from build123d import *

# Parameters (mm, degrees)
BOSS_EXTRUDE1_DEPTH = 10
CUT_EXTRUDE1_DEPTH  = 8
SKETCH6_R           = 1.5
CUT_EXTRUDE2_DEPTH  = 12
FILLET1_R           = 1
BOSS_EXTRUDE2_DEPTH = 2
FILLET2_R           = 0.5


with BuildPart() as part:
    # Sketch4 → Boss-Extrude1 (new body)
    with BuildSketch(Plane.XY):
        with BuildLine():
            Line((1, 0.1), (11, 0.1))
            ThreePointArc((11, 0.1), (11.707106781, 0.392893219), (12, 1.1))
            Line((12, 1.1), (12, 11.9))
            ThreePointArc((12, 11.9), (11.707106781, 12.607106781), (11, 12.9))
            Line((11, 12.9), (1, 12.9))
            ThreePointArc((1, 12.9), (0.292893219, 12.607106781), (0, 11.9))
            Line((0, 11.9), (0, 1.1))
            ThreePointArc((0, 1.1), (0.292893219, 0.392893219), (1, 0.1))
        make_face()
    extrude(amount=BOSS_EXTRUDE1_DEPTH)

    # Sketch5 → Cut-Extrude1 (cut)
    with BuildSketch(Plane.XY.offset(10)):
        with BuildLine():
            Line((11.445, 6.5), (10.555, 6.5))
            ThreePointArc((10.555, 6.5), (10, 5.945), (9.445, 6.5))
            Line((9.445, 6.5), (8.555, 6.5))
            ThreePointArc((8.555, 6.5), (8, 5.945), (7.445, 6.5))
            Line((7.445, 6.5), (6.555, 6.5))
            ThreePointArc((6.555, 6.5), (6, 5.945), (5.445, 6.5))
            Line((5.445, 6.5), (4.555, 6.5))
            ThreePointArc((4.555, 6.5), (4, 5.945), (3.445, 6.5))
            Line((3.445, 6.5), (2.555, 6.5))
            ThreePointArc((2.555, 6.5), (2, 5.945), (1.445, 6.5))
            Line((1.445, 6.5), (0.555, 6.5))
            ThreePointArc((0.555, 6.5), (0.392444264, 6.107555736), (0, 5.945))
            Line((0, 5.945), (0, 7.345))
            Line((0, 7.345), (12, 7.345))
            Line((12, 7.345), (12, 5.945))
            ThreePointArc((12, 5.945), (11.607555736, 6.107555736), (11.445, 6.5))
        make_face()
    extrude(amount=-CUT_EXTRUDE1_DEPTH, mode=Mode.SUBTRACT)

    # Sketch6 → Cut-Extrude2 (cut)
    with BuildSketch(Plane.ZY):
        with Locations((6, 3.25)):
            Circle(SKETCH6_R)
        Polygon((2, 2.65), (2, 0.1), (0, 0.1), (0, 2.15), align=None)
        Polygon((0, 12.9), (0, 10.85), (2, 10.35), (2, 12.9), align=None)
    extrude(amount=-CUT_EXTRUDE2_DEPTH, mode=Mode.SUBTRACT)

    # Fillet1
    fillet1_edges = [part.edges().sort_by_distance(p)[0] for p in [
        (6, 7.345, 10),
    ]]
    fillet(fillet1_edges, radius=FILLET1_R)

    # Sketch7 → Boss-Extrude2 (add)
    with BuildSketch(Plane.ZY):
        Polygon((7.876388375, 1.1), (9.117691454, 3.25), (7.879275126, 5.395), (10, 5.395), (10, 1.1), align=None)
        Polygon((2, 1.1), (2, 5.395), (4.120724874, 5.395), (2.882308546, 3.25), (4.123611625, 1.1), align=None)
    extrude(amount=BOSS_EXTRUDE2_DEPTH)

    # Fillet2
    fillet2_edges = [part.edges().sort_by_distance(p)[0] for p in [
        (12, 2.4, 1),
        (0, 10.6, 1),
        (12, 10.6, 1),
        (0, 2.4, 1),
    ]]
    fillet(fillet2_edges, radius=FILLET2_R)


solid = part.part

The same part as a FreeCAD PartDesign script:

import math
import FreeCAD as App
import Part
import Sketcher
from FreeCAD import Vector
Q = App.Units.Quantity


def edges_at(feature, points):
    """Names of the edges that pass closest to the given points."""
    edges = feature.Shape.Edges
    near = lambda p: min(range(len(edges)), key=lambda i: edges[i].distToShape(Part.Vertex(*p))[0])
    return sorted({f"Edge{near(p) + 1}" for p in points})

doc = App.newDocument("Part")
body = doc.addObject("PartDesign::Body", "Body")

# Sketch on XY plane
sketch1 = body.newObject("Sketcher::SketchObject", "Sketch")
sketch1.AttachmentSupport = (doc.getObject("XY_Plane"), [""])
sketch1.MapMode = "FlatFace"
sketch1.addGeometry(Part.LineSegment(Vector(1, 0.1, 0), Vector(11, 0.1, 0)), False)
sketch1.addGeometry(Part.ArcOfCircle(Part.Circle(Vector(11, 1.1, 0), Vector(0, 0, 1), 1), math.radians(-90), math.radians(0)), False)
sketch1.addGeometry(Part.LineSegment(Vector(12, 1.1, 0), Vector(12, 11.9, 0)), False)
sketch1.addGeometry(Part.ArcOfCircle(Part.Circle(Vector(11, 11.9, 0), Vector(0, 0, 1), 1), math.radians(0), math.radians(90)), False)
sketch1.addGeometry(Part.LineSegment(Vector(11, 12.9, 0), Vector(1, 12.9, 0)), False)
sketch1.addGeometry(Part.ArcOfCircle(Part.Circle(Vector(1, 11.9, 0), Vector(0, 0, 1), 1), math.radians(90), math.radians(180)), False)
sketch1.addGeometry(Part.LineSegment(Vector(0, 11.9, 0), Vector(0, 1.1, 0)), False)
sketch1.addGeometry(Part.ArcOfCircle(Part.Circle(Vector(1, 1.1, 0), Vector(0, 0, 1), 1), math.radians(-180), math.radians(-90)), False)
sketch1.addConstraint(Sketcher.Constraint("Tangent", 0, 2, 1, 1))
sketch1.addConstraint(Sketcher.Constraint("Tangent", 1, 2, 2, 1))
sketch1.addConstraint(Sketcher.Constraint("Tangent", 2, 2, 3, 1))
sketch1.addConstraint(Sketcher.Constraint("Tangent", 3, 2, 4, 1))
sketch1.addConstraint(Sketcher.Constraint("Tangent", 4, 2, 5, 1))
sketch1.addConstraint(Sketcher.Constraint("Tangent", 5, 2, 6, 1))
sketch1.addConstraint(Sketcher.Constraint("Tangent", 6, 2, 7, 1))
sketch1.addConstraint(Sketcher.Constraint("Tangent", 7, 2, 0, 1))
sketch1.addConstraint(Sketcher.Constraint("Horizontal", 0))
sketch1.addConstraint(Sketcher.Constraint("Vertical", 2))
sketch1.addConstraint(Sketcher.Constraint("Horizontal", 4))
sketch1.addConstraint(Sketcher.Constraint("Vertical", 6))
sketch1.addConstraint(Sketcher.Constraint("Equal", 1, 3))
sketch1.addConstraint(Sketcher.Constraint("Equal", 3, 5))
sketch1.addConstraint(Sketcher.Constraint("Equal", 5, 7))
sketch1.addConstraint(Sketcher.Constraint("PointOnObject", 5, 2, -2))
sketch1.addConstraint(Sketcher.Constraint("Radius", 1, Q("1 mm")))
sketch1.addConstraint(Sketcher.Constraint("DistanceX", 0, 1, 0, 2, Q("10 mm")))
sketch1.addConstraint(Sketcher.Constraint("DistanceY", 2, 1, 2, 2, Q("10.8 mm")))
sketch1.addConstraint(Sketcher.Constraint("DistanceY", -1, 1, 1, 3, Q("1.1 mm")))
pad1 = body.newObject("PartDesign::Pad", "Pad")
pad1.Profile = sketch1
pad1.Length = 10

# Sketch on XY plane
sketch2 = body.newObject("Sketcher::SketchObject", "Sketch001")
sketch2.AttachmentSupport = (doc.getObject("XY_Plane"), [""])
sketch2.MapMode = "FlatFace"
sketch2.AttachmentOffset = App.Placement(Vector(0, 0, 10), App.Rotation())
sketch2.addGeometry(Part.LineSegment(Vector(10.6, 6.5, 0), Vector(11.4, 6.5, 0)), False)
sketch2.addGeometry(Part.ArcOfCircle(Part.Circle(Vector(12, 6.5, 0), Vector(0, 0, 1), 0.6), math.radians(180), math.radians(270)), False)
sketch2.addGeometry(Part.LineSegment(Vector(12, 5.9, 0), Vector(12, 7.3, 0)), False)
sketch2.addGeometry(Part.LineSegment(Vector(12, 7.3, 0), Vector(0, 7.3, 0)), False)
sketch2.addGeometry(Part.LineSegment(Vector(0, 7.3, 0), Vector(0, 5.9, 0)), False)
sketch2.addGeometry(Part.ArcOfCircle(Part.Circle(Vector(0, 6.5, 0), Vector(0, 0, 1), 0.6), math.radians(-90), math.radians(0)), False)
sketch2.addGeometry(Part.LineSegment(Vector(0.6, 6.5, 0), Vector(1.4, 6.5, 0)), False)
sketch2.addGeometry(Part.ArcOfCircle(Part.Circle(Vector(2, 6.5, 0), Vector(0, 0, 1), 0.6), math.radians(180), math.radians(360)), False)
sketch2.addGeometry(Part.LineSegment(Vector(2.6, 6.5, 0), Vector(3.4, 6.5, 0)), False)
sketch2.addGeometry(Part.ArcOfCircle(Part.Circle(Vector(4, 6.5, 0), Vector(0, 0, 1), 0.6), math.radians(180), math.radians(360)), False)
sketch2.addGeometry(Part.LineSegment(Vector(4.6, 6.5, 0), Vector(5.4, 6.5, 0)), False)
sketch2.addGeometry(Part.ArcOfCircle(Part.Circle(Vector(6, 6.5, 0), Vector(0, 0, 1), 0.6), math.radians(180), math.radians(360)), False)
sketch2.addGeometry(Part.LineSegment(Vector(6.6, 6.5, 0), Vector(7.4, 6.5, 0)), False)
sketch2.addGeometry(Part.ArcOfCircle(Part.Circle(Vector(8, 6.5, 0), Vector(0, 0, 1), 0.6), math.radians(180), math.radians(360)), False)
sketch2.addGeometry(Part.LineSegment(Vector(8.6, 6.5, 0), Vector(9.4, 6.5, 0)), False)
sketch2.addGeometry(Part.ArcOfCircle(Part.Circle(Vector(10, 6.5, 0), Vector(0, 0, 1), 0.6), math.radians(180), math.radians(360)), False)
sketch2.addConstraint(Sketcher.Constraint("Coincident", 0, 2, 1, 1))
sketch2.addConstraint(Sketcher.Constraint("Coincident", 1, 2, 2, 1))
sketch2.addConstraint(Sketcher.Constraint("Coincident", 2, 2, 3, 1))
sketch2.addConstraint(Sketcher.Constraint("Coincident", 3, 2, 4, 1))
sketch2.addConstraint(Sketcher.Constraint("Coincident", 4, 2, 5, 1))
sketch2.addConstraint(Sketcher.Constraint("Coincident", 5, 2, 6, 1))
sketch2.addConstraint(Sketcher.Constraint("Coincident", 6, 2, 7, 1))
sketch2.addConstraint(Sketcher.Constraint("Coincident", 7, 2, 8, 1))
sketch2.addConstraint(Sketcher.Constraint("Coincident", 8, 2, 9, 1))
sketch2.addConstraint(Sketcher.Constraint("Coincident", 9, 2, 10, 1))
sketch2.addConstraint(Sketcher.Constraint("Coincident", 10, 2, 11, 1))
sketch2.addConstraint(Sketcher.Constraint("Coincident", 11, 2, 12, 1))
sketch2.addConstraint(Sketcher.Constraint("Coincident", 12, 2, 13, 1))
sketch2.addConstraint(Sketcher.Constraint("Coincident", 13, 2, 14, 1))
sketch2.addConstraint(Sketcher.Constraint("Coincident", 14, 2, 15, 1))
sketch2.addConstraint(Sketcher.Constraint("Coincident", 15, 2, 0, 1))
sketch2.addConstraint(Sketcher.Constraint("Horizontal", 0))
sketch2.addConstraint(Sketcher.Constraint("Vertical", 2))
sketch2.addConstraint(Sketcher.Constraint("Horizontal", 3))
sketch2.addConstraint(Sketcher.Constraint("Vertical", 4))
sketch2.addConstraint(Sketcher.Constraint("Horizontal", 6))
sketch2.addConstraint(Sketcher.Constraint("Horizontal", 8))
sketch2.addConstraint(Sketcher.Constraint("Horizontal", 10))
sketch2.addConstraint(Sketcher.Constraint("Horizontal", 12))
sketch2.addConstraint(Sketcher.Constraint("Horizontal", 14))
sketch2.addConstraint(Sketcher.Constraint("Equal", 1, 5))
sketch2.addConstraint(Sketcher.Constraint("Equal", 5, 7))
sketch2.addConstraint(Sketcher.Constraint("Equal", 7, 9))
sketch2.addConstraint(Sketcher.Constraint("Equal", 9, 11))
sketch2.addConstraint(Sketcher.Constraint("Equal", 11, 13))
sketch2.addConstraint(Sketcher.Constraint("Equal", 13, 15))
sketch2.addConstraint(Sketcher.Constraint("PointOnObject", 5, 3, -2))
sketch2.addConstraint(Sketcher.Constraint("PointOnObject", 3, 2, -2))
sketch2.addConstraint(Sketcher.Constraint("Horizontal", 1, 3, 5, 3))
sketch2.addConstraint(Sketcher.Constraint("Horizontal", 5, 3, 7, 3))
sketch2.addConstraint(Sketcher.Constraint("Horizontal", 7, 3, 9, 3))
sketch2.addConstraint(Sketcher.Constraint("Horizontal", 9, 3, 11, 3))
sketch2.addConstraint(Sketcher.Constraint("Horizontal", 11, 3, 13, 3))
sketch2.addConstraint(Sketcher.Constraint("Horizontal", 13, 3, 15, 3))
sketch2.addConstraint(Sketcher.Constraint("Horizontal", 15, 3, 0, 2))
sketch2.addConstraint(Sketcher.Constraint("Horizontal", 0, 2, 5, 2))
sketch2.addConstraint(Sketcher.Constraint("Horizontal", 6, 2, 7, 2))
sketch2.addConstraint(Sketcher.Constraint("Horizontal", 8, 2, 9, 2))
sketch2.addConstraint(Sketcher.Constraint("Horizontal", 10, 2, 11, 2))
sketch2.addConstraint(Sketcher.Constraint("Horizontal", 12, 2, 13, 2))
sketch2.addConstraint(Sketcher.Constraint("Equal", 0, 6))
sketch2.addConstraint(Sketcher.Constraint("Equal", 6, 8))
sketch2.addConstraint(Sketcher.Constraint("Equal", 8, 10))
sketch2.addConstraint(Sketcher.Constraint("Equal", 10, 12))
sketch2.addConstraint(Sketcher.Constraint("Equal", 12, 14))
sketch2.addConstraint(Sketcher.Constraint("DistanceX", 3, 2, 3, 1, Q("12 mm")))
sketch2.addConstraint(Sketcher.Constraint("DistanceY", 2, 1, 2, 2, Q("1.4 mm")))
sketch2.addConstraint(Sketcher.Constraint("DistanceX", -1, 1, 1, 3, Q("12 mm")))
sketch2.addConstraint(Sketcher.Constraint("Radius", 1, Q("0.555 mm")))
sketch2.addConstraint(Sketcher.Constraint("DistanceY", -1, 1, 1, 3, Q("6.5 mm")))
pocket1 = body.newObject("PartDesign::Pocket", "Pocket")
pocket1.Profile = sketch2
pocket1.Length = 8

# Sketch on YZ plane
sketch3 = body.newObject("Sketcher::SketchObject", "Sketch002")
sketch3.AttachmentSupport = (doc.getObject("YZ_Plane"), [""])
sketch3.MapMode = "FlatFace"
sketch3.addGeometry(Part.Circle(Vector(3.2, 6, 0), Vector(0, 0, 1), 1.5), False)
sketch3.addGeometry(Part.LineSegment(Vector(0.1, 2, 0), Vector(2.6, 2, 0)), False)
sketch3.addGeometry(Part.LineSegment(Vector(2.6, 2, 0), Vector(2.1, 0, 0)), False)
sketch3.addGeometry(Part.LineSegment(Vector(2.1, 0, 0), Vector(0.1, 0, 0)), False)
sketch3.addGeometry(Part.LineSegment(Vector(0.1, 0, 0), Vector(0.1, 2, 0)), False)
sketch3.addGeometry(Part.LineSegment(Vector(12.9, 0, 0), Vector(10.8, 0, 0)), False)
sketch3.addGeometry(Part.LineSegment(Vector(10.8, 0, 0), Vector(10.3, 2, 0)), False)
sketch3.addGeometry(Part.LineSegment(Vector(10.3, 2, 0), Vector(12.9, 2, 0)), False)
sketch3.addGeometry(Part.LineSegment(Vector(12.9, 2, 0), Vector(12.9, 0, 0)), False)
sketch3.addConstraint(Sketcher.Constraint("Coincident", 1, 2, 2, 1))
sketch3.addConstraint(Sketcher.Constraint("Coincident", 2, 2, 3, 1))
sketch3.addConstraint(Sketcher.Constraint("Coincident", 3, 2, 4, 1))
sketch3.addConstraint(Sketcher.Constraint("Coincident", 4, 2, 1, 1))
sketch3.addConstraint(Sketcher.Constraint("Coincident", 5, 2, 6, 1))
sketch3.addConstraint(Sketcher.Constraint("Coincident", 6, 2, 7, 1))
sketch3.addConstraint(Sketcher.Constraint("Coincident", 7, 2, 8, 1))
sketch3.addConstraint(Sketcher.Constraint("Coincident", 8, 2, 5, 1))
sketch3.addConstraint(Sketcher.Constraint("Horizontal", 1))
sketch3.addConstraint(Sketcher.Constraint("Horizontal", 3))
sketch3.addConstraint(Sketcher.Constraint("Vertical", 4))
sketch3.addConstraint(Sketcher.Constraint("Horizontal", 5))
sketch3.addConstraint(Sketcher.Constraint("Horizontal", 7))
sketch3.addConstraint(Sketcher.Constraint("Vertical", 8))
sketch3.addConstraint(Sketcher.Constraint("PointOnObject", 2, 2, -1))
sketch3.addConstraint(Sketcher.Constraint("PointOnObject", 5, 2, -1))
sketch3.addConstraint(Sketcher.Constraint("Horizontal", 4, 2, 6, 2))
sketch3.addConstraint(Sketcher.Constraint("Equal", 3, 5))
sketch3.addConstraint(Sketcher.Constraint("Equal", 1, 7))
sketch3.addConstraint(Sketcher.Constraint("Diameter", 0, Q("3 mm")))
sketch3.addConstraint(Sketcher.Constraint("DistanceY", 4, 1, 4, 2, Q("2 mm")))
sketch3.addConstraint(Sketcher.Constraint("DistanceY", -1, 1, 0, 3, Q("6 mm")))
sketch3.addConstraint(Sketcher.Constraint("DistanceX", 1, 1, 1, 2, Q("2.55 mm")))
sketch3.addConstraint(Sketcher.Constraint("DistanceX", 3, 2, 3, 1, Q("2.05 mm")))
sketch3.addConstraint(Sketcher.Constraint("DistanceX", -1, 1, 3, 2, Q("0.1 mm")))
sketch3.addConstraint(Sketcher.Constraint("DistanceX", -1, 1, 7, 2, Q("12.9 mm")))
sketch3.addConstraint(Sketcher.Constraint("DistanceX", 1, 2, 0, 3, Q("0.6 mm")))
pocket2 = body.newObject("PartDesign::Pocket", "Pocket001")
pocket2.Profile = sketch3
pocket2.Length = 12
pocket2.Reversed = True
doc.recompute()

fillet = body.newObject("PartDesign::Fillet", "Fillet")
fillet.Base = (pocket2, edges_at(pocket2, [(6, 7.345, 10)]))
fillet.Radius = 1

# Sketch on YZ plane
sketch4 = body.newObject("Sketcher::SketchObject", "Sketch003")
sketch4.AttachmentSupport = (doc.getObject("YZ_Plane"), [""])
sketch4.MapMode = "FlatFace"
sketch4.addGeometry(Part.LineSegment(Vector(3.2, 9.1, 0), Vector(1.1, 7.9, 0)), False)
sketch4.addGeometry(Part.LineSegment(Vector(1.1, 7.9, 0), Vector(1.1, 10, 0)), False)
sketch4.addGeometry(Part.LineSegment(Vector(1.1, 10, 0), Vector(5.4, 10, 0)), False)
sketch4.addGeometry(Part.LineSegment(Vector(5.4, 10, 0), Vector(5.4, 7.9, 0)), False)
sketch4.addGeometry(Part.LineSegment(Vector(5.4, 7.9, 0), Vector(3.2, 9.1, 0)), False)
sketch4.addGeometry(Part.LineSegment(Vector(5.4, 2, 0), Vector(1.1, 2, 0)), False)
sketch4.addGeometry(Part.LineSegment(Vector(1.1, 2, 0), Vector(1.1, 4.1, 0)), False)
sketch4.addGeometry(Part.LineSegment(Vector(1.1, 4.1, 0), Vector(3.2, 2.9, 0)), False)
sketch4.addGeometry(Part.LineSegment(Vector(3.2, 2.9, 0), Vector(5.4, 4.1, 0)), False)
sketch4.addGeometry(Part.LineSegment(Vector(5.4, 4.1, 0), Vector(5.4, 2, 0)), False)
sketch4.addConstraint(Sketcher.Constraint("Coincident", 0, 2, 1, 1))
sketch4.addConstraint(Sketcher.Constraint("Coincident", 1, 2, 2, 1))
sketch4.addConstraint(Sketcher.Constraint("Coincident", 2, 2, 3, 1))
sketch4.addConstraint(Sketcher.Constraint("Coincident", 3, 2, 4, 1))
sketch4.addConstraint(Sketcher.Constraint("Coincident", 4, 2, 0, 1))
sketch4.addConstraint(Sketcher.Constraint("Coincident", 5, 2, 6, 1))
sketch4.addConstraint(Sketcher.Constraint("Coincident", 6, 2, 7, 1))
sketch4.addConstraint(Sketcher.Constraint("Coincident", 7, 2, 8, 1))
sketch4.addConstraint(Sketcher.Constraint("Coincident", 8, 2, 9, 1))
sketch4.addConstraint(Sketcher.Constraint("Coincident", 9, 2, 5, 1))
sketch4.addConstraint(Sketcher.Constraint("Vertical", 1))
sketch4.addConstraint(Sketcher.Constraint("Horizontal", 2))
sketch4.addConstraint(Sketcher.Constraint("Vertical", 3))
sketch4.addConstraint(Sketcher.Constraint("Horizontal", 5))
sketch4.addConstraint(Sketcher.Constraint("Vertical", 6))
sketch4.addConstraint(Sketcher.Constraint("Vertical", 9))
sketch4.addConstraint(Sketcher.Constraint("Parallel", 4, 7))
sketch4.addConstraint(Sketcher.Constraint("Parallel", 0, 8))
sketch4.addConstraint(Sketcher.Constraint("Vertical", 1, 2, 5, 2))
sketch4.addConstraint(Sketcher.Constraint("Vertical", 4, 2, 7, 2))
sketch4.addConstraint(Sketcher.Constraint("Vertical", 3, 2, 8, 2))
sketch4.addConstraint(Sketcher.Constraint("Equal", 1, 6))
sketch4.addConstraint(Sketcher.Constraint("Equal", 3, 9))
sketch4.addConstraint(Sketcher.Constraint("Angle", 0, Q("-150 deg")))
sketch4.addConstraint(Sketcher.Constraint("DistanceY", -1, 1, 1, 2, Q("10 mm")))
sketch4.addConstraint(Sketcher.Constraint("DistanceY", -1, 1, 5, 2, Q("2 mm")))
sketch4.addConstraint(Sketcher.Constraint("DistanceX", -1, 1, 0, 2, Q("1.1 mm")))
sketch4.addConstraint(Sketcher.Constraint("DistanceX", 2, 1, 2, 2, Q("4.295 mm")))
sketch4.addConstraint(Sketcher.Constraint("DistanceX", -1, 1, 4, 2, Q("3.25 mm")))
sketch4.addConstraint(Sketcher.Constraint("DistanceY", 1, 1, 1, 2, Q("2.123612 mm")))
pad2 = body.newObject("PartDesign::Pad", "Pad001")
pad2.Profile = sketch4
pad2.Length = 2
pad2.Reversed = True
doc.recompute()

fillet2 = body.newObject("PartDesign::Fillet", "Fillet001")
fillet2.Base = (pad2, edges_at(pad2, [
    (12, 2.4, 1),
    (0, 10.6, 1),
    (12, 10.6, 1),
    (0, 2.4, 1),
]))
fillet2.Radius = 0.5

doc.recompute()
